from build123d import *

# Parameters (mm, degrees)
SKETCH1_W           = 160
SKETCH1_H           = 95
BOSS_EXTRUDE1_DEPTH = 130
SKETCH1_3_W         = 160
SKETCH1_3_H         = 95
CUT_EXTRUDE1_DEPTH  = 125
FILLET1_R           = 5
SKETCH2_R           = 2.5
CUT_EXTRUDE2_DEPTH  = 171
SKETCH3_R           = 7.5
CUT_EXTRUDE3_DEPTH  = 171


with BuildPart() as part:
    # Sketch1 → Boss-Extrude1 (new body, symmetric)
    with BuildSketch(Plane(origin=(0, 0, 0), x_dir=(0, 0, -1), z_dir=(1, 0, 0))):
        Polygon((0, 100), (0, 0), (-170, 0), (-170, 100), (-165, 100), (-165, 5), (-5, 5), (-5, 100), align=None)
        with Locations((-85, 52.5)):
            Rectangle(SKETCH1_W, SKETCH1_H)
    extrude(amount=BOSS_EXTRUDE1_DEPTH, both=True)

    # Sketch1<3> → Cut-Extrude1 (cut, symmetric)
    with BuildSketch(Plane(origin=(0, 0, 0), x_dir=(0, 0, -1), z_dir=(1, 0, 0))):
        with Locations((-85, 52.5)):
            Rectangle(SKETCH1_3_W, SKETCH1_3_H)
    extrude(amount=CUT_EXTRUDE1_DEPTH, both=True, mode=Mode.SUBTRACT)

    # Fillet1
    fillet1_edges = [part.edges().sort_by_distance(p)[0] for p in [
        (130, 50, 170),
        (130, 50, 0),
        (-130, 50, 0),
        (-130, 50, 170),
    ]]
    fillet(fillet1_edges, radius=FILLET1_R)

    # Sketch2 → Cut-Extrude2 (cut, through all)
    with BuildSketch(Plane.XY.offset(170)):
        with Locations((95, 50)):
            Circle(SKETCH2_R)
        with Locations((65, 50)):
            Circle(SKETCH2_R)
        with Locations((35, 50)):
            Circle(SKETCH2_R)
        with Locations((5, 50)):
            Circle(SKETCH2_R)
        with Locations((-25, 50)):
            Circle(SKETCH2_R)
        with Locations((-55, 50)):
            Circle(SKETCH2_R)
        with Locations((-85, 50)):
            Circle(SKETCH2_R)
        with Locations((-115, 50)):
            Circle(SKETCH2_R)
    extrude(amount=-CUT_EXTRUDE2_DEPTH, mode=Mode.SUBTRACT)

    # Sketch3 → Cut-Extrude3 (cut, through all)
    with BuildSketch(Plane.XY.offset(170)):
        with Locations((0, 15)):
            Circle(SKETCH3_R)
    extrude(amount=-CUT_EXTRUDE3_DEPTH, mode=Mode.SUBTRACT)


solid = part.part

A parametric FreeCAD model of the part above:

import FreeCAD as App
import Part
import Sketcher

V = App.Vector
Q = App.Units.Quantity


def edges_at(feature, points):
    """Names of the edges that pass closest to the given points."""
    edges = feature.Shape.Edges
    near = lambda p: min(range(len(edges)), key=lambda i: edges[i].distToShape(Part.Vertex(*p))[0])
    return sorted({f"Edge{near(p) + 1}" for p in points})


def add_polygon(sketch, points):
    """Adds a closed chain of lines whose ends are joined by coincident constraints."""
    first, n = sketch.GeometryCount, len(points)
    for a, b in zip(points, points[1:] + points[:1]):
        sketch.addGeometry(Part.LineSegment(App.Vector(*a, 0), App.Vector(*b, 0)), False)
    for i in range(n):
        sketch.addConstraint(Sketcher.Constraint("Coincident", first + i, 2, first + (i + 1) % n, 1))

doc = App.newDocument("Part")
body = doc.addObject("PartDesign::Body", "Body")

sketch1 = body.newObject("Sketcher::SketchObject", "Sketch")
sketch1.AttachmentSupport = (doc.getObject("YZ_Plane"), [""])
sketch1.MapMode = "FlatFace"
add_polygon(sketch1, [(0, 0), (100, 0), (100, 170), (0, 170)])
sketch1.addConstraint([
    Sketcher.Constraint("Horizontal", 0),
    Sketcher.Constraint("Vertical", 1),
    Sketcher.Constraint("Horizontal", 2),
    Sketcher.Constraint("Vertical", 3),
    Sketcher.Constraint("Coincident", 3, 2, -1, 1),
    Sketcher.Constraint("DistanceX", 0, 1, 0, 2, Q("100 mm")),
    Sketcher.Constraint("DistanceY", 1, 1, 1, 2, Q("170 mm")),
])
pad1 = body.newObject("PartDesign::Pad", "Pad")
pad1.Profile = sketch1
pad1.Length = 260
pad1.Midplane = True

sketch2 = body.newObject("Sketcher::SketchObject", "Sketch001")
sketch2.AttachmentSupport = (doc.getObject("YZ_Plane"), [""])
sketch2.MapMode = "FlatFace"
add_polygon(sketch2, [(100, 165), (5, 165), (5, 5), (100, 5)])
sketch2.addConstraint([
    Sketcher.Constraint("Horizontal", 0),
    Sketcher.Constraint("Vertical", 1),
    Sketcher.Constraint("Horizontal", 2),
    Sketcher.Constraint("Vertical", 3),
    Sketcher.Constraint("DistanceX", 0, 2, 0, 1, Q("95 mm")),
    Sketcher.Constraint("DistanceY", 1, 2, 1, 1, Q("160 mm")),
    Sketcher.Constraint("DistanceX", -1, 1, 0, 2, Q("5 mm")),
    Sketcher.Constraint("DistanceY", -1, 1, 0, 2, Q("165 mm")),
])
pocket1 = body.newObject("PartDesign::Pocket", "Pocket")
pocket1.Profile = sketch2
pocket1.Length = 250
pocket1.Midplane = True
doc.recompute()

fillet = body.newObject("PartDesign::Fillet", "Fillet")
fillet.Base = (pocket1, edges_at(pocket1, [
    (130, 50, 170),
    (130, 50, 0),
    (-130, 50, 0),
    (-130, 50, 170),
]))
fillet.Radius = 5

sketch3 = body.newObject("Sketcher::SketchObject", "Sketch002")
sketch3.AttachmentSupport = (doc.getObject("XY_Plane"), [""])
sketch3.MapMode = "FlatFace"
sketch3.AttachmentOffset = App.Placement(V(0, 0, 170), App.Rotation())
sketch3.addGeometry([
    Part.Circle(V(95, 50, 0), V(0, 0, 1), 2.5),
    Part.Circle(V(65, 50, 0), V(0, 0, 1), 2.5),
    Part.Circle(V(35, 50, 0), V(0, 0, 1), 2.5),
    Part.Circle(V(5, 50, 0), V(0, 0, 1), 2.5),
    Part.Circle(V(-25, 50, 0), V(0, 0, 1), 2.5),
    Part.Circle(V(-55, 50, 0), V(0, 0, 1), 2.5),
    Part.Circle(V(-85, 50, 0), V(0, 0, 1), 2.5),
    Part.Circle(V(-115, 50, 0), V(0, 0, 1), 2.5),
], False)
sketch3.addConstraint([
    Sketcher.Constraint("Equal", 0, 1),
    Sketcher.Constraint("Equal", 1, 2),
    Sketcher.Constraint("Equal", 2, 3),
    Sketcher.Constraint("Equal", 3, 4),
    Sketcher.Constraint("Equal", 4, 5),
    Sketcher.Constraint("Equal", 5, 6),
    Sketcher.Constraint("Equal", 6, 7),
    Sketcher.Constraint("Horizontal", 0, 3, 1, 3),
    Sketcher.Constraint("Horizontal", 1, 3, 2, 3),
    Sketcher.Constraint("Horizontal", 2, 3, 3, 3),
    Sketcher.Constraint("Horizontal", 3, 3, 4, 3),
    Sketcher.Constraint("Horizontal", 4, 3, 5, 3),
    Sketcher.Constraint("Horizontal", 5, 3, 6, 3),
    Sketcher.Constraint("Horizontal", 6, 3, 7, 3),
    Sketcher.Constraint("Diameter", 0, Q("5 mm")),
    Sketcher.Constraint("DistanceX", -1, 1, 0, 3, Q("95 mm")),
    Sketcher.Constraint("DistanceY", -1, 1, 0, 3, Q("50 mm")),
    Sketcher.Constraint("DistanceX", -1, 1, 1, 3, Q("65 mm")),
    Sketcher.Constraint("DistanceX", -1, 1, 2, 3, Q("35 mm")),
    Sketcher.Constraint("DistanceX", -1, 1, 3, 3, Q("5 mm")),
    Sketcher.Constraint("DistanceX", 4, 3, -1, 1, Q("25 mm")),
    Sketcher.Constraint("DistanceX", 5, 3, -1, 1, Q("55 mm")),
    Sketcher.Constraint("DistanceX", 6, 3, -1, 1, Q("85 mm")),
    Sketcher.Constraint("DistanceX", 7, 3, -1, 1, Q("115 mm")),
])
pocket2 = body.newObject("PartDesign::Pocket", "Pocket001")
pocket2.Profile = sketch3
pocket2.Type = "ThroughAll"

sketch4 = body.newObject("Sketcher::SketchObject", "Sketch003")
sketch4.AttachmentSupport = (doc.getObject("XY_Plane"), [""])
sketch4.MapMode = "FlatFace"
sketch4.AttachmentOffset = App.Placement(V(0, 0, 170), App.Rotation())
sketch4.addGeometry(Part.Circle(V(0, 15, 0), V(0, 0, 1), 8), False)
sketch4.addConstraint([
    Sketcher.Constraint("PointOnObject", 0, 3, -2),
    Sketcher.Constraint("Diameter", 0, Q("15 mm")),
    Sketcher.Constraint("DistanceY", -1, 1, 0, 3, Q("15 mm")),
])
pocket3 = body.newObject("PartDesign::Pocket", "Pocket002")
pocket3.Profile = sketch4
pocket3.Type = "ThroughAll"

doc.recompute()
